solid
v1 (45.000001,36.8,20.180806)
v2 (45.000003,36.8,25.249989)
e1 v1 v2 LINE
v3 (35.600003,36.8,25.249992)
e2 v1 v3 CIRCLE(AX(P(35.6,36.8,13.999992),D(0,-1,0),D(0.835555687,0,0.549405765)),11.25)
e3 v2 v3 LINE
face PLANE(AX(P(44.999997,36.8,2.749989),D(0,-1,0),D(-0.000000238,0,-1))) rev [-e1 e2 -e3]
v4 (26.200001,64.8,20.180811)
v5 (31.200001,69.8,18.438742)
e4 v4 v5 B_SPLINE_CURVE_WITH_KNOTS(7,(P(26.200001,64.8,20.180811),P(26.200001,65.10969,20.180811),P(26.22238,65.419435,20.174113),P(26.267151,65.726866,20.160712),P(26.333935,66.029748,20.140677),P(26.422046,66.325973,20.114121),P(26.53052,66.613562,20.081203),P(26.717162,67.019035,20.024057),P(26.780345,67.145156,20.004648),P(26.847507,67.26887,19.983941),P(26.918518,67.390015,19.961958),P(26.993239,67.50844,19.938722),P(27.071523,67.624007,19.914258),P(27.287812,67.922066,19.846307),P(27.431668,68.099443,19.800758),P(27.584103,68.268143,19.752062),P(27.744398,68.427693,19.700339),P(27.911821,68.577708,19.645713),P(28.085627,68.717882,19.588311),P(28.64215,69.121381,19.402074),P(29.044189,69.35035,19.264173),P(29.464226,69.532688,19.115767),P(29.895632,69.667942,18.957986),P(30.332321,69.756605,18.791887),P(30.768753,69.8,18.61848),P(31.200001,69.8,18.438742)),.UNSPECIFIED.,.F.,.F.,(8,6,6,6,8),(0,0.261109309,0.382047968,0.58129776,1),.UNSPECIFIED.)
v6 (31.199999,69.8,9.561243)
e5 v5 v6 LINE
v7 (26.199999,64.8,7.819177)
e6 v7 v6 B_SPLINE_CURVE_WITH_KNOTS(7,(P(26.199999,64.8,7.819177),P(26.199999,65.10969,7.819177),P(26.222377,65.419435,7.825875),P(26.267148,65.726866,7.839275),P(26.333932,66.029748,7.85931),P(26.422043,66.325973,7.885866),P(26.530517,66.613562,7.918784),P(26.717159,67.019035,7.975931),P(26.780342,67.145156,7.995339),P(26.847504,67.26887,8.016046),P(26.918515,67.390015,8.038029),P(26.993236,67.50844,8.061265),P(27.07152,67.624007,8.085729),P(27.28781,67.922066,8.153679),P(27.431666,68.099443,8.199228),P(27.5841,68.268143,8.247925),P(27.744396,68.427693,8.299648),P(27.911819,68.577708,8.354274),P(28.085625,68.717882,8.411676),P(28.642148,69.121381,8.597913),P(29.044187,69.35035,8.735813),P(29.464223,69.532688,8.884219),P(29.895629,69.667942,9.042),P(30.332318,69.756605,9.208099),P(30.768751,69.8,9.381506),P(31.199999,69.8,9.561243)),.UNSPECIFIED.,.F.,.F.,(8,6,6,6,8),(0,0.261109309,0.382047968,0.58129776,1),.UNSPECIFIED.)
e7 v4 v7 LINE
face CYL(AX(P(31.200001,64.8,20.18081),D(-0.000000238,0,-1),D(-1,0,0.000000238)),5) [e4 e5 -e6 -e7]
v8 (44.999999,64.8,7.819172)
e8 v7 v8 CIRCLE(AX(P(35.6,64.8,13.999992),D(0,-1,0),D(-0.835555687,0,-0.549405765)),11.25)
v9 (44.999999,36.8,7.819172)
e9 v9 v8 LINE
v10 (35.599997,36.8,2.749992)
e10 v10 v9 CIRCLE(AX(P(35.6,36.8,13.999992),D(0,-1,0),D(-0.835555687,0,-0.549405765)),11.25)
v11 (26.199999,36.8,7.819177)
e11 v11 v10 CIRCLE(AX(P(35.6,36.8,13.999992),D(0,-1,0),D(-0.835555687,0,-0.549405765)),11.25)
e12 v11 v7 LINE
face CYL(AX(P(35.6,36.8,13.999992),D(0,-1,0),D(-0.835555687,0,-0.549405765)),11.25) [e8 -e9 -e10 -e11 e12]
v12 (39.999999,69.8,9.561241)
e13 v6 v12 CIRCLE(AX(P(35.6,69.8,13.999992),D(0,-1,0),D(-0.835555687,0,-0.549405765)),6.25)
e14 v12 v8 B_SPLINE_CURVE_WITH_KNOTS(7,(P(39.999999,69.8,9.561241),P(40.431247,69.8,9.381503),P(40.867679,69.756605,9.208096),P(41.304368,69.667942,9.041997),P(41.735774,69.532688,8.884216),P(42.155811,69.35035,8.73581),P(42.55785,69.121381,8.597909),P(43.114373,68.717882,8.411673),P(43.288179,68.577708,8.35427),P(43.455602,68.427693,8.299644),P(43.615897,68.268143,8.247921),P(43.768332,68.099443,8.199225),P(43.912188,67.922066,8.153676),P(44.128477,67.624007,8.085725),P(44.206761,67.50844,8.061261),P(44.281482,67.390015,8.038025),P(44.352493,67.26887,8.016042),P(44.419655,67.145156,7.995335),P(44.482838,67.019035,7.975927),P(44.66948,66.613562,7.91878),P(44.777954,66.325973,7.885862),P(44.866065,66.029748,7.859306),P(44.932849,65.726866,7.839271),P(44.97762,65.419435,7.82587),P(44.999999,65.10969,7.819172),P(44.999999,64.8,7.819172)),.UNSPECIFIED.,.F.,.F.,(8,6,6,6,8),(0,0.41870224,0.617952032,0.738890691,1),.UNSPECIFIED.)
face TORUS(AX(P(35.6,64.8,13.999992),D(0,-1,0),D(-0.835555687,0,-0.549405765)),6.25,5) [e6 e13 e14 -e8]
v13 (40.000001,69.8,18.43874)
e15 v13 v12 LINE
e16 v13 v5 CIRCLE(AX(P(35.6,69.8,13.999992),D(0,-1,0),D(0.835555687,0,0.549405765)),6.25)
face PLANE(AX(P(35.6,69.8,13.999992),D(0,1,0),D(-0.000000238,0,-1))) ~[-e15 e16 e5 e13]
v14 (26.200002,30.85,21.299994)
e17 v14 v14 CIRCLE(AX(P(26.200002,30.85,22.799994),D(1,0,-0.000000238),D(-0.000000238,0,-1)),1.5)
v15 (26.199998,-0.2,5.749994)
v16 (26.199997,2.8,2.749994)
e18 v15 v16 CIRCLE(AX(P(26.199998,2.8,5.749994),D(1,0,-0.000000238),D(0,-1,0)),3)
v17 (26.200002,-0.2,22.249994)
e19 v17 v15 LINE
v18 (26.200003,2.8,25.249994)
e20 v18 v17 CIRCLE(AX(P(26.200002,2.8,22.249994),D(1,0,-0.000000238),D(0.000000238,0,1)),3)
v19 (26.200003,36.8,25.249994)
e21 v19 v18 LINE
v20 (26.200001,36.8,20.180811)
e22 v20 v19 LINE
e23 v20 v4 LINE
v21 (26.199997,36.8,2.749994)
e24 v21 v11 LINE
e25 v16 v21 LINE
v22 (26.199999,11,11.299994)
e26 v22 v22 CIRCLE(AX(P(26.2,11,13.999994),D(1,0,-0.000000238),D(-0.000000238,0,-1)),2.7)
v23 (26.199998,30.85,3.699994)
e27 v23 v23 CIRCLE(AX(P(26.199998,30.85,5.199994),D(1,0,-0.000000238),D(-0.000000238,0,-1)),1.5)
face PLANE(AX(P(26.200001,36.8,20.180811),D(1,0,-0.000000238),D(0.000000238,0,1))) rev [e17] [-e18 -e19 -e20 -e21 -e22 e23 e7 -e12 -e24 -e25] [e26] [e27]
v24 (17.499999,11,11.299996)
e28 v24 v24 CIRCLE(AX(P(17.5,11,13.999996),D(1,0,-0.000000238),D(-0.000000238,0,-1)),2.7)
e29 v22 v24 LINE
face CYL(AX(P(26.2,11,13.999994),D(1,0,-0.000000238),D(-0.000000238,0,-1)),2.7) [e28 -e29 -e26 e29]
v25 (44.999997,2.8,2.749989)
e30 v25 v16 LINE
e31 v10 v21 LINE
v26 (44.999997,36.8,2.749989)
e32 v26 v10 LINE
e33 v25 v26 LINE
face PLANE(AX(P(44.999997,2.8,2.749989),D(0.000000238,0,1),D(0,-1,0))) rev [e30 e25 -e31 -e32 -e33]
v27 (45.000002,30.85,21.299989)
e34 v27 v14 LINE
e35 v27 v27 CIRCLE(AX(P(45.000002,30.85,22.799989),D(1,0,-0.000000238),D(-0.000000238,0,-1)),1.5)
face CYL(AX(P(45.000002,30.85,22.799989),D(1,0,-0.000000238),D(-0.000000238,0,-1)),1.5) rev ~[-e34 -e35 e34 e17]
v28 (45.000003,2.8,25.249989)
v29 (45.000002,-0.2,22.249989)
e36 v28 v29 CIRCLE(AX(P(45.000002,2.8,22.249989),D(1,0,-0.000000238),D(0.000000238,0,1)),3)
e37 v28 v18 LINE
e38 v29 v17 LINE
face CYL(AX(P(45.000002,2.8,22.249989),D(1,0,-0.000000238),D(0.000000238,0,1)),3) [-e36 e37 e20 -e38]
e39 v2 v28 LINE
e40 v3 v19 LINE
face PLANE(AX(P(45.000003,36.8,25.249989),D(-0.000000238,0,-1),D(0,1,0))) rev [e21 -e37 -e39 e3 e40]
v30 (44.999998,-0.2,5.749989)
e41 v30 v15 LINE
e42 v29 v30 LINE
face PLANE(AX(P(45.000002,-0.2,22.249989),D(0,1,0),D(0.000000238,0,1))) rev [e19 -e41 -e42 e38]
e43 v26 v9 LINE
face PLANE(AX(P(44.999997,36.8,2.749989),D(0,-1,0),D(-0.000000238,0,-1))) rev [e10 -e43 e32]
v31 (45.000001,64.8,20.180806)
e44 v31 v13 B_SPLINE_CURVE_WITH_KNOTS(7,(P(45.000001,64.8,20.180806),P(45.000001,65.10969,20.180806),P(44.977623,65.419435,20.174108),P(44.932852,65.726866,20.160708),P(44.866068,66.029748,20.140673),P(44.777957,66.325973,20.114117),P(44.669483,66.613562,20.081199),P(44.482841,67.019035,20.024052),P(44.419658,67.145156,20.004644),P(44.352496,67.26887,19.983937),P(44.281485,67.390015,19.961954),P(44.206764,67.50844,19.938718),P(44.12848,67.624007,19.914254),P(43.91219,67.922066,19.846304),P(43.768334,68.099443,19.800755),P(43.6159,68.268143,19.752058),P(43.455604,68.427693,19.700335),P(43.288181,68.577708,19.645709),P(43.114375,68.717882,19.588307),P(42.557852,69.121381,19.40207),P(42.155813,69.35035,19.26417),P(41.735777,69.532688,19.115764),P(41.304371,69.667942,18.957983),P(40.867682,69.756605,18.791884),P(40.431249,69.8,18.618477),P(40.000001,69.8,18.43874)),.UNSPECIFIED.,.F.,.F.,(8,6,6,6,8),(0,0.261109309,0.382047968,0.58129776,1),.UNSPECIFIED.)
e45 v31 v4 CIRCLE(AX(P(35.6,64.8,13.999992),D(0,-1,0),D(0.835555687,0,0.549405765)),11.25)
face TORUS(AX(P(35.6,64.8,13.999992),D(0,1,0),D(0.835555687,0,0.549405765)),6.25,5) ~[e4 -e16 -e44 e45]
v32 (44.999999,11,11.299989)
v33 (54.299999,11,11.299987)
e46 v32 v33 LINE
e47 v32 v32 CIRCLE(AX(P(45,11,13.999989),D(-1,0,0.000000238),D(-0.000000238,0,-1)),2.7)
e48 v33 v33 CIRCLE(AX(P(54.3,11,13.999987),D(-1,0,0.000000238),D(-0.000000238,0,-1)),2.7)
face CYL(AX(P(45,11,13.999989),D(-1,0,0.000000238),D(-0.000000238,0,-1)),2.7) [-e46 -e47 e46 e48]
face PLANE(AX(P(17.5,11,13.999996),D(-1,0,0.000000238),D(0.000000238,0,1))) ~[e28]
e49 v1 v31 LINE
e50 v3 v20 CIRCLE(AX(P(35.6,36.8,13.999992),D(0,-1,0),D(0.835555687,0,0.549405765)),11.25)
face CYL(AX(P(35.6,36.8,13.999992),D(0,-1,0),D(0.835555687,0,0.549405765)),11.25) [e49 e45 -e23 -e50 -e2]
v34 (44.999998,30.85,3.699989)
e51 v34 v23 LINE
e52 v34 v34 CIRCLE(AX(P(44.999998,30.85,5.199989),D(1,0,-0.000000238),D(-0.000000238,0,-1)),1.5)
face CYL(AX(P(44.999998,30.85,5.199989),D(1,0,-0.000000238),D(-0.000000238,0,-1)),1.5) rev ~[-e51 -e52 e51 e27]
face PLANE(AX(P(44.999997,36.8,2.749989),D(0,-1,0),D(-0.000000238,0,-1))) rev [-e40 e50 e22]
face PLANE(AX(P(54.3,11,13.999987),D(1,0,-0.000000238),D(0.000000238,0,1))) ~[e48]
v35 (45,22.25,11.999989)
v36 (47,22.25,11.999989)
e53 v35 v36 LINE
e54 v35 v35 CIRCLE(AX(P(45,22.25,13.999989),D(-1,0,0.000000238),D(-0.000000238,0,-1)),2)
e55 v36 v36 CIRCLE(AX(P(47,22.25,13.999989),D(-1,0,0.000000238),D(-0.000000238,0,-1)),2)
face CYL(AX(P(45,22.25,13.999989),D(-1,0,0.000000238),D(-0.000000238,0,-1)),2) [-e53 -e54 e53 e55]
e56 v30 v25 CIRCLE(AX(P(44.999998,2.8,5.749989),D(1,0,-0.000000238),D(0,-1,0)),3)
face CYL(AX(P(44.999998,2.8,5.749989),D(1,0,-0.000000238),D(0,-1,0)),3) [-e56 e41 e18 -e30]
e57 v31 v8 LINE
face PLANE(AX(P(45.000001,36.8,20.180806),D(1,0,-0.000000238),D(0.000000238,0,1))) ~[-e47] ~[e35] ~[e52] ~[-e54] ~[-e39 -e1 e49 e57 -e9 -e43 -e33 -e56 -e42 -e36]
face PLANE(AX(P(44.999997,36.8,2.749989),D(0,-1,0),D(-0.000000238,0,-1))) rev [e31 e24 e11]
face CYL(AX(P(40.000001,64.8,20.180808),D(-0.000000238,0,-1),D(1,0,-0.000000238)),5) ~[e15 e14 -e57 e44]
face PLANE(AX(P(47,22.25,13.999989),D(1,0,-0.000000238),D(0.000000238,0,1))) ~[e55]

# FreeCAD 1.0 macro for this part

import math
import FreeCAD as App
import Part
import Sketcher
from FreeCAD import Vector
Q = App.Units.Quantity


def edges_at(feature, points):
    """Names of the edges that pass closest to the given points."""
    edges = feature.Shape.Edges
    near = lambda p: min(range(len(edges)), key=lambda i: edges[i].distToShape(Part.Vertex(*p))[0])
    return sorted({f"Edge{near(p) + 1}" for p in points})

doc = App.newDocument("Part")
body = doc.addObject("PartDesign::Body", "Body")

sketch1 = doc.addObject("Sketcher::SketchObject", "Sketch")
body.addObject(sketch1)
sketch1.AttachmentSupport = (doc.XY_Plane, [""])
sketch1.MapMode = "FlatFace"
sketch1.addGeometry([
    Part.LineSegment(Vector(-8.2, -11.2, 0), Vector(8.2, -11.2, 0)),
    Part.ArcOfCircle(Part.Circle(Vector(8.2, -8.2, 0), Vector(0, 0, 1), 3), math.radians(-90), math.radians(0)),
    Part.LineSegment(Vector(11.2, -8.2, 0), Vector(11.2, 25.8, 0)),
    Part.LineSegment(Vector(11.2, 25.8, 0), Vector(-11.2, 25.8, 0)),
    Part.LineSegment(Vector(-11.2, 25.8, 0), Vector(-11.2, -8.2, 0)),
    Part.ArcOfCircle(Part.Circle(Vector(-8.2, -8.2, 0), Vector(0, 0, 1), 3), math.radians(180), math.radians(270)),
    Part.Circle(Vector(-8.8, 19.9, 0), Vector(0, 0, 1), 1.5),
    Part.Circle(Vector(8.8, 19.9, 0), Vector(0, 0, 1), 1.5),
], False)
sketch1.addConstraint([
    Sketcher.Constraint("Tangent", 0, 2, 1, 1),
    Sketcher.Constraint("Tangent", 1, 2, 2, 1),
    Sketcher.Constraint("Coincident", 2, 2, 3, 1),
    Sketcher.Constraint("Coincident", 3, 2, 4, 1),
    Sketcher.Constraint("Tangent", 4, 2, 5, 1),
    Sketcher.Constraint("Tangent", 5, 2, 0, 1),
    Sketcher.Constraint("Horizontal", 0),
    Sketcher.Constraint("Vertical", 2),
    Sketcher.Constraint("Horizontal", 3),
    Sketcher.Constraint("Vertical", 4),
    Sketcher.Constraint("Equal", 1, 5),
    Sketcher.Constraint("Equal", 6, 7),
    Sketcher.Constraint("Symmetric", 6, 3, 7, 3, -2),
    Sketcher.Constraint("Diameter", 6, Q("3 mm")),
    Sketcher.Constraint("Radius", 1, Q("3 mm")),
    Sketcher.Constraint("DistanceY", 2, 1, 2, 2, Q("34 mm")),
    Sketcher.Constraint("DistanceX", 0, 1, 0, 2, Q("16.5 mm")),
    Sketcher.Constraint("DistanceY", 1, 3, -1, 1, Q("8.2 mm")),
    Sketcher.Constraint("DistanceX", 6, 3, -1, 1, Q("8.8 mm")),
    Sketcher.Constraint("DistanceX", -1, 1, 1, 3, Q("8.25 mm")),
    Sketcher.Constraint("DistanceY", -1, 1, 6, 3, Q("19.85 mm")),
])
pad1 = doc.addObject("PartDesign::Pad", "Pad")
body.addObject(pad1)
pad1.Profile = sketch1
pad1.Length = 18.8

sketch2 = doc.addObject("Sketcher::SketchObject", "Sketch001")
body.addObject(sketch2)
sketch2.AttachmentSupport = (doc.XY_Plane, [""])
sketch2.MapMode = "FlatFace"
sketch2.AttachmentOffset = App.Placement(Vector(0, 0, 18.8), App.Rotation())
sketch2.addGeometry(Part.Circle(Vector(0, 0, 0), Vector(0, 0, 1), 2.7), False)
sketch2.addConstraint([
    Sketcher.Constraint("Coincident", 0, 3, -1, 1),
    Sketcher.Constraint("Diameter", 0, Q("5.4 mm")),
])
pad2 = doc.addObject("PartDesign::Pad", "Pad001")
body.addObject(pad2)
pad2.Profile = sketch2
pad2.Length = 8.7

sketch3 = doc.addObject("Sketcher::SketchObject", "Sketch002")
body.addObject(sketch3)
sketch3.AttachmentSupport = (doc.XY_Plane, [""])
sketch3.MapMode = "FlatFace"
sketch3.addGeometry(Part.Circle(Vector(0, 0, 0), Vector(0, 0, 1), 2.7), False)
sketch3.addConstraint([
    Sketcher.Constraint("Coincident", 0, 3, -1, 1),
    Sketcher.Constraint("Diameter", 0, Q("5.4 mm")),
])
pad3 = doc.addObject("PartDesign::Pad", "Pad002")
body.addObject(pad3)
pad3.Profile = sketch3
pad3.Length = 9.3
pad3.Reversed = True

sketch4 = doc.addObject("Sketcher::SketchObject", "Sketch003")
body.addObject(sketch4)
sketch4.AttachmentSupport = (doc.XZ_Plane, [""])
sketch4.MapMode = "FlatFace"
sketch4.AttachmentOffset = App.Placement(Vector(0, 0, -25.8), App.Rotation())
sketch4.addGeometry([
    Part.ArcOfCircle(Part.Circle(Vector(0, 9, 0), Vector(0, 0, 1), 11), math.radians(123), math.radians(237)),
    Part.LineSegment(Vector(-6, 19, 0), Vector(6, 19, 0)),
    Part.ArcOfCircle(Part.Circle(Vector(0, 9, 0), Vector(0, 0, 1), 11), math.radians(-57), math.radians(57)),
    Part.LineSegment(Vector(6, 0, 0), Vector(-6, 0, 0)),
], False)
sketch4.addConstraint([
    Sketcher.Constraint("Coincident", 0, 1, 1, 1),
    Sketcher.Constraint("Coincident", 1, 2, 2, 2),
    Sketcher.Constraint("Coincident", 2, 1, 3, 1),
    Sketcher.Constraint("Coincident", 3, 2, 0, 2),
    Sketcher.Constraint("Horizontal", 1),
    Sketcher.Constraint("Horizontal", 3),
    Sketcher.Constraint("Coincident", 2, 3, 0, 3),
    Sketcher.Constraint("Equal", 0, 2),
    Sketcher.Constraint("Symmetric", 2, 1, 3, 2, -1, 1),
    Sketcher.Constraint("Vertical", 1, 2, 2, 1),
    Sketcher.Constraint("Radius", 0, Q("11.25 mm")),
    Sketcher.Constraint("DistanceY", -1, 1, 0, 3, Q("9.4 mm")),
])
pad4 = doc.addObject("PartDesign::Pad", "Pad003")
body.addObject(pad4)
pad4.Profile = sketch4
pad4.Length = 33
pad4.Reversed = True
doc.recompute()

fillet = doc.addObject("PartDesign::Fillet", "Fillet")
body.addObject(fillet)
fillet.Base = (pad4, edges_at(pad4, [
    (-11.25, 58.8, 9.4),
    (0, 58.8, 18.8),
    (11.25, 58.8, 9.4),
    (0, 58.8, 0),
]))
fillet.Radius = 5

sketch5 = doc.addObject("Sketcher::SketchObject", "Sketch004")
body.addObject(sketch5)
sketch5.AttachmentSupport = (doc.XY_Plane, [""])
sketch5.MapMode = "FlatFace"
sketch5.addGeometry(Part.Circle(Vector(0, 11.2, 0), Vector(0, 0, 1), 2), False)
sketch5.addConstraint([
    Sketcher.Constraint("PointOnObject", 0, 3, -2),
    Sketcher.Constraint("Diameter", 0, Q("4 mm")),
    Sketcher.Constraint("DistanceY", -1, 1, 0, 3, Q("11.25 mm")),
])
pad5 = doc.addObject("PartDesign::Pad", "Pad004")
body.addObject(pad5)
pad5.Profile = sketch5
pad5.Length = 2
pad5.Reversed = True
body2 = doc.addObject("PartDesign::Body", "Body001")
doc.recompute()

body.Placement = App.Placement(Vector(-45, 11, 14), App.Rotation(Vector(0, 1, 0), 90))
boolean = doc.addObject("PartDesign::Boolean", "Boolean")
body2.addObject(boolean)
boolean.Type = "Fuse"
boolean.addObjects([body])
body3 = doc.addObject("PartDesign::Body", "Body002")
doc.recompute()

mirroring = doc.addObject("Part::Mirroring", "Mirroring")
mirroring.Source = body2
mirroring.Base = Vector(0, 34.799999, 13.999996)
mirroring.Normal = Vector(1, 0, -0.000000119)
body3.BaseFeature = mirroring
doc.recompute()
body2.Visibility = False
mirroring.Visibility = False

doc.recompute()
